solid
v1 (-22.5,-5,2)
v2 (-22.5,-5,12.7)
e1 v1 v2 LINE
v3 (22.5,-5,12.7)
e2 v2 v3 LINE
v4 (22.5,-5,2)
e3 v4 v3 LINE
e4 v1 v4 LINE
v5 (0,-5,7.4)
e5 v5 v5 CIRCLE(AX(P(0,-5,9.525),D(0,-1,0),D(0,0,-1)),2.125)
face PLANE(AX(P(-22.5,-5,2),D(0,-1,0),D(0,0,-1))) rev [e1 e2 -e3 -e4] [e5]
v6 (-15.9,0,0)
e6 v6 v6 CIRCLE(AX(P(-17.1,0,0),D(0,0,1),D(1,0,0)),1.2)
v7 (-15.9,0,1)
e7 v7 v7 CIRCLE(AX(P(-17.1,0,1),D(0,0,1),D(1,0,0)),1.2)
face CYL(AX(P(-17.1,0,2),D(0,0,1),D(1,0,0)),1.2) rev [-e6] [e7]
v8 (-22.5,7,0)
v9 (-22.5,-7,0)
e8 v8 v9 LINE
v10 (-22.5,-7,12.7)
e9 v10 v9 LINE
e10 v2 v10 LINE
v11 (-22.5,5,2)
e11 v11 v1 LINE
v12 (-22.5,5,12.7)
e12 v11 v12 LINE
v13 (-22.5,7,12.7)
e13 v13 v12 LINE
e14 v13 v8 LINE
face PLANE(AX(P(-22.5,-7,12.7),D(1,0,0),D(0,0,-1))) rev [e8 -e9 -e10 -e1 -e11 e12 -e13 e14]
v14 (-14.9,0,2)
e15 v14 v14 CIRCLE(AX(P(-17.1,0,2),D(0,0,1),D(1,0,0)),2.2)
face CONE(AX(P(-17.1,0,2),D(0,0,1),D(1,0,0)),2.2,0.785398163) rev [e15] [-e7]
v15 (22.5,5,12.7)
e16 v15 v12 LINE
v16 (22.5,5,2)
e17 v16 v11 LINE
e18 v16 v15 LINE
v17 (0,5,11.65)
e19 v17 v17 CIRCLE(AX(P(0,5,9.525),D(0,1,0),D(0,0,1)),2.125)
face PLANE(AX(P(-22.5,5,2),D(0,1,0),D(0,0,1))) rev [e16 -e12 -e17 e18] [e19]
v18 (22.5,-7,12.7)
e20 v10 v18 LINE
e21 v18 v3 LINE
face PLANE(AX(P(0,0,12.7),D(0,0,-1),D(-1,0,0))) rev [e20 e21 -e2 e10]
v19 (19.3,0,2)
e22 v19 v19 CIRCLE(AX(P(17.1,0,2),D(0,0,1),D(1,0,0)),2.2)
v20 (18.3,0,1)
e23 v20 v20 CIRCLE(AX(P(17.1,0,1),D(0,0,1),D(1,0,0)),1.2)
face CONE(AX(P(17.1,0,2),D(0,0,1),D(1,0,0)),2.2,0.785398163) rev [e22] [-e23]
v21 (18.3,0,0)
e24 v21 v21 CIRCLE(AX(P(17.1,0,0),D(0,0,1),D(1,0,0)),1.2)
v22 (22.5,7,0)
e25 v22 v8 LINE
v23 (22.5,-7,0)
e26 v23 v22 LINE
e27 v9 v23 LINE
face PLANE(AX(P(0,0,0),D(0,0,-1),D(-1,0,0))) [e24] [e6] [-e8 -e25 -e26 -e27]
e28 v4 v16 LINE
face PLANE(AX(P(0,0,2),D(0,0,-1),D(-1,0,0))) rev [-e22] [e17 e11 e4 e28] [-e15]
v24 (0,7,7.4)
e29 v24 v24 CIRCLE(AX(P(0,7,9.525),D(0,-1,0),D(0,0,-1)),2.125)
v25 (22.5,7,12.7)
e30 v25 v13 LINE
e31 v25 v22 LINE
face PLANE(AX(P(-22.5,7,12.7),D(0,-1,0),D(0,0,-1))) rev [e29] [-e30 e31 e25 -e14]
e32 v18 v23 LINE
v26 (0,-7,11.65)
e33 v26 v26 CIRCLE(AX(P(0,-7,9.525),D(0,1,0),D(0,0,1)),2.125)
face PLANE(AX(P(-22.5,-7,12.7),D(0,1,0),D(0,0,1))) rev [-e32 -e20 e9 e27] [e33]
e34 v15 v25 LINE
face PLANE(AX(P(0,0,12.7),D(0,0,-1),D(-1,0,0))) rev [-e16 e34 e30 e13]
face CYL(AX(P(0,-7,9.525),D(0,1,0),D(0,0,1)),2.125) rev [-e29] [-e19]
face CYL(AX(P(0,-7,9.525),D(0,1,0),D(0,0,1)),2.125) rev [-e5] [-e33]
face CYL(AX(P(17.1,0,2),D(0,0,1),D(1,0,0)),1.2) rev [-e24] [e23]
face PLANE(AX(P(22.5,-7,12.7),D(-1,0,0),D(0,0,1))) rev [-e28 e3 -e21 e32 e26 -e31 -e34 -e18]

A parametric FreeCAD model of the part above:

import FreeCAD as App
import Part
import Sketcher

V = App.Vector
Q = App.Units.Quantity


def add_polygon(sketch, points):
    """Adds a closed chain of lines whose ends are joined by coincident constraints."""
    first, n = sketch.GeometryCount, len(points)
    for a, b in zip(points, points[1:] + points[:1]):
        sketch.addGeometry(Part.LineSegment(App.Vector(*a, 0), App.Vector(*b, 0)), False)
    for i in range(n):
        sketch.addConstraint(Sketcher.Constraint("Coincident", first + i, 2, first + (i + 1) % n, 1))

doc = App.newDocument("Part")
params = doc.addObject("Spreadsheet::Sheet", "Params")
for row, (alias, value) in enumerate([
    ("sketch1_width", "45 mm"),
    ("sketch1_height", "14 mm"),
    ("pad1_length", "12.7 mm"),
    ("sketch2_width", "45 mm"),
    ("sketch2_height", "10 mm"),
    ("pocket1_length", "10.7 mm"),
    ("sketch3_height", "2 mm"),
    ("sketch3_height2", "1 mm"),
    ("sketch3_width", "2.2 mm"),
    ("groove_angle", "360 deg"),
    ("linearpattern_pitch", "34.2 mm"),
    ("sketch4_diameter", "4.25 mm"),
], start=1):
    params.set(f"A{row}", alias)
    params.set(f"B{row}", "=" + value)
    params.setAlias(f"B{row}", alias)

body = doc.addObject("PartDesign::Body", "Body")

# Sketch on XY plane
sketch1 = body.newObject("Sketcher::SketchObject", "Sketch")
sketch1.AttachmentSupport = (doc.getObject("XY_Plane"), [""])
sketch1.MapMode = "FlatFace"
add_polygon(sketch1, [(-22, 7), (-22, -7), (22, -7), (22, 7)])  # lines 0-3
sketch1.addConstraint([
    Sketcher.Constraint("Vertical", 0),
    Sketcher.Constraint("Horizontal", 1),
    Sketcher.Constraint("Vertical", 2),
    Sketcher.Constraint("Horizontal", 3),
    Sketcher.Constraint("Symmetric", 0, 2, 2, 2, -1, 1),
    Sketcher.Constraint("DistanceX", 1, 1, 1, 2, Q("45 mm")),
    Sketcher.Constraint("DistanceY", 0, 2, 0, 1, Q("14 mm")),
])
sketch1.setExpression("Constraints[9]", "Params.sketch1_width")
sketch1.setExpression("Constraints[10]", "Params.sketch1_height")
pad1 = body.newObject("PartDesign::Pad", "Pad")
pad1.Profile = sketch1
pad1.setExpression("Length", "Params.pad1_length")

# Sketch on XY plane
sketch2 = body.newObject("Sketcher::SketchObject", "Sketch001")
sketch2.AttachmentSupport = (doc.getObject("XY_Plane"), [""])
sketch2.MapMode = "FlatFace"
sketch2.AttachmentOffset = App.Placement(V(0, 0, 12.7), App.Rotation())
add_polygon(sketch2, [(-22, 5), (-22, -5), (22, -5), (22, 5)])  # lines 0-3
sketch2.addConstraint([
    Sketcher.Constraint("Vertical", 0),
    Sketcher.Constraint("Horizontal", 1),
    Sketcher.Constraint("Vertical", 2),
    Sketcher.Constraint("Horizontal", 3),
    Sketcher.Constraint("Symmetric", 0, 2, 2, 2, -1, 1),
    Sketcher.Constraint("DistanceX", 1, 1, 1, 2, Q("45 mm")),
    Sketcher.Constraint("DistanceY", 0, 2, 0, 1, Q("10 mm")),
])
sketch2.setExpression("Constraints[9]", "Params.sketch2_width")
sketch2.setExpression("Constraints[10]", "Params.sketch2_height")
pocket1 = body.newObject("PartDesign::Pocket", "Pocket")
pocket1.Profile = sketch2
pocket1.setExpression("Length", "Params.pocket1_length")

# Sketch on YZ plane
sketch3 = body.newObject("Sketcher::SketchObject", "Sketch002")
sketch3.AttachmentSupport = (doc.getObject("YZ_Plane"), [""])
sketch3.MapMode = "FlatFace"
sketch3.AttachmentOffset = App.Placement(V(0, 0, -17.1), App.Rotation())
add_polygon(sketch3, [(0, 0), (0, 2), (-2.2, 2), (-1.2, 1), (-1.2, 0)])  # lines 0-4
sketch3.addConstraint([
    Sketcher.Constraint("Vertical", 0),
    Sketcher.Constraint("Horizontal", 1),
    Sketcher.Constraint("Vertical", 3),
    Sketcher.Constraint("Horizontal", 4),
    Sketcher.Constraint("Coincident", 4, 2, -1, 1),
    Sketcher.Constraint("DistanceY", 0, 1, 0, 2, Q("2 mm")),
    Sketcher.Constraint("DistanceY", 3, 2, 3, 1, Q("1 mm")),
    Sketcher.Constraint("Angle", 2, Q("-45 deg")),
    Sketcher.Constraint("DistanceX", 1, 2, 1, 1, Q("2.2 mm")),
])
sketch3.setExpression("Constraints[10]", "Params.sketch3_height")
sketch3.setExpression("Constraints[11]", "Params.sketch3_height2")
sketch3.setExpression("Constraints[13]", "Params.sketch3_width")
groove = body.newObject("PartDesign::Groove", "Groove")
groove.Profile = sketch3
groove.ReferenceAxis = (sketch3, ["V_Axis"])
groove.setExpression("Angle", "Params.groove_angle")
doc.recompute()

linearpattern = body.newObject("PartDesign::LinearPattern", "LinearPattern")
linearpattern.Originals = [groove]
linearpattern.Direction = (doc.getObject("X_Axis"), [""])
linearpattern.Mode = "offset"
linearpattern.setExpression("Offset", "Params.linearpattern_pitch")
linearpattern.Occurrences = 2
body.Tip = linearpattern

# Sketch on XZ plane
sketch4 = body.newObject("Sketcher::SketchObject", "Sketch003")
sketch4.AttachmentSupport = (doc.getObject("XZ_Plane"), [""])
sketch4.MapMode = "FlatFace"
sketch4.AttachmentOffset = App.Placement(V(0, 0, -7), App.Rotation())
sketch4.addGeometry(Part.Circle(V(0, 9.5, 0), V(0, 0, 1), 2.1), False)
sketch4.addConstraint([
    Sketcher.Constraint("PointOnObject", 0, 3, -2),
    Sketcher.Constraint("Diameter", 0, Q("4.25 mm")),
    Sketcher.Constraint("DistanceY", -1, 1, 0, 3, Q("9.525 mm")),
])
sketch4.setExpression("Constraints[1]", "Params.sketch4_diameter")
pocket2 = body.newObject("PartDesign::Pocket", "Pocket001")
pocket2.Profile = sketch4
pocket2.Type = "ThroughAll"
pocket2.Midplane = True

doc.recompute()
